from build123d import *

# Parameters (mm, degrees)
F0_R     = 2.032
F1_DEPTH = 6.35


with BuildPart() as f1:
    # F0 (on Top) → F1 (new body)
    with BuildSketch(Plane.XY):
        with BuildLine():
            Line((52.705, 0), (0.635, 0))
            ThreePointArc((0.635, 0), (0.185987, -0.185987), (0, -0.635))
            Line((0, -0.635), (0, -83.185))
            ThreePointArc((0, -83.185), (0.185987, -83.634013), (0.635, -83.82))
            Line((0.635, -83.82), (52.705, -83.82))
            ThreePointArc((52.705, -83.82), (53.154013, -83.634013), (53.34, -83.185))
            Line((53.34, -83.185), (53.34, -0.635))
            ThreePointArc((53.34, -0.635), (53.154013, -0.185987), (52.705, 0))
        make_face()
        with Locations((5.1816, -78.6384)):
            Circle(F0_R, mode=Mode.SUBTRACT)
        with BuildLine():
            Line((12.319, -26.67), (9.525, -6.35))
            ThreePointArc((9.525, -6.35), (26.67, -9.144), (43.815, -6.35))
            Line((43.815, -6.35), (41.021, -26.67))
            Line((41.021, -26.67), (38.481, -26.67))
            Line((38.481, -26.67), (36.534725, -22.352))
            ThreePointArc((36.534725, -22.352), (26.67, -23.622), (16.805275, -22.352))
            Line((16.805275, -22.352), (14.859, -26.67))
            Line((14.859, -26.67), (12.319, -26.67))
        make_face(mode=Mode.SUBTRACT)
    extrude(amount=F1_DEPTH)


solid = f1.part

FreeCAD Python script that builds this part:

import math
import FreeCAD as App
import Part
import Sketcher

V = App.Vector
Q = App.Units.Quantity

doc = App.newDocument("Part")
params = doc.addObject("Spreadsheet::Sheet", "Params")
for row, (alias, value) in enumerate([
    ("sketch1_diameter", "0.16 in"),
    ("sketch1_width", "0.1 in"),
    ("sketch1_radius", "0.025 in"),
    ("sketch1_width2", "2.05 in"),
    ("sketch1_height", "3.25 in"),
    ("pad1_length", "0.25 in"),
], start=1):
    params.set(f"A{row}", alias)
    params.set(f"B{row}", "=" + value)
    params.setAlias(f"B{row}", alias)

body = doc.addObject("PartDesign::Body", "Body")

sketch1 = body.newObject("Sketcher::SketchObject", "Sketch")
sketch1.AttachmentSupport = (doc.getObject("XY_Plane"), [""])
sketch1.MapMode = "FlatFace"
sketch1.addGeometry([
    Part.LineSegment(V(52.7, 0, 0), V(0.6, 0, 0)),
    Part.ArcOfCircle(Part.Circle(V(0.6, -0.6, 0), V(0, 0, 1), 0.6), math.radians(90), math.radians(180)),
    Part.LineSegment(V(0, -0.6, 0), V(0, -83.2, 0)),
    Part.ArcOfCircle(Part.Circle(V(0.6, -83.2, 0), V(0, 0, 1), 0.6), math.radians(180), math.radians(270)),
    Part.LineSegment(V(0.6, -83.8, 0), V(52.7, -83.8, 0)),
    Part.ArcOfCircle(Part.Circle(V(52.7, -83.2, 0), V(0, 0, 1), 0.6), math.radians(-90), math.radians(0)),
    Part.LineSegment(V(53.3, -83.2, 0), V(53.3, -0.6, 0)),
    Part.ArcOfCircle(Part.Circle(V(52.7, -0.6, 0), V(0, 0, 1), 0.6), math.radians(0), math.radians(90)),
    Part.Circle(V(5.2, -78.6, 0), V(0, 0, 1), 2),
    Part.LineSegment(V(14.9, -26.7, 0), V(12.3, -26.7, 0)),
    Part.LineSegment(V(12.3, -26.7, 0), V(9.5, -6.3, 0)),
    Part.ArcOfCircle(Part.Circle(V(26.7, 44.9, 0), V(0, 0, 1), 54), math.radians(-109), math.radians(-71)),
    Part.LineSegment(V(43.8, -6.3, 0), V(41, -26.7, 0)),
    Part.LineSegment(V(41, -26.7, 0), V(38.5, -26.7, 0)),
    Part.LineSegment(V(38.5, -26.7, 0), V(36.5, -22.4, 0)),
    Part.ArcOfCircle(Part.Circle(V(26.7, 15.3, 0), V(0, 0, 1), 38.9), math.radians(-105), math.radians(-75)),
    Part.LineSegment(V(16.8, -22.4, 0), V(14.9, -26.7, 0)),
], False)
sketch1.addConstraint([
    Sketcher.Constraint("Tangent", 0, 2, 1, 1),
    Sketcher.Constraint("Tangent", 1, 2, 2, 1),
    Sketcher.Constraint("Tangent", 2, 2, 3, 1),
    Sketcher.Constraint("Tangent", 3, 2, 4, 1),
    Sketcher.Constraint("Tangent", 4, 2, 5, 1),
    Sketcher.Constraint("Tangent", 5, 2, 6, 1),
    Sketcher.Constraint("Tangent", 6, 2, 7, 1),
    Sketcher.Constraint("Tangent", 7, 2, 0, 1),
    Sketcher.Constraint("Coincident", 9, 2, 10, 1),
    Sketcher.Constraint("Coincident", 10, 2, 11, 1),
    Sketcher.Constraint("Coincident", 11, 2, 12, 1),
    Sketcher.Constraint("Coincident", 12, 2, 13, 1),
    Sketcher.Constraint("Coincident", 13, 2, 14, 1),
    Sketcher.Constraint("Coincident", 14, 2, 15, 2),
    Sketcher.Constraint("Coincident", 15, 1, 16, 1),
    Sketcher.Constraint("Coincident", 16, 2, 9, 1),
    Sketcher.Constraint("Horizontal", 0),
    Sketcher.Constraint("Vertical", 2),
    Sketcher.Constraint("Horizontal", 4),
    Sketcher.Constraint("Vertical", 6),
    Sketcher.Constraint("Horizontal", 9),
    Sketcher.Constraint("Horizontal", 13),
    Sketcher.Constraint("Equal", 1, 3),
    Sketcher.Constraint("Equal", 3, 5),
    Sketcher.Constraint("Equal", 5, 7),
    Sketcher.Constraint("PointOnObject", 0, 2, -1),
    Sketcher.Constraint("PointOnObject", 1, 2, -2),
    Sketcher.Constraint("Horizontal", 10, 2, 11, 2),
    Sketcher.Constraint("Horizontal", 9, 2, 12, 2),
    Sketcher.Constraint("Horizontal", 14, 2, 15, 1),
    Sketcher.Constraint("Vertical", 11, 3, 15, 3),
    Sketcher.Constraint("Equal", 9, 13),
    Sketcher.Constraint("Equal", 10, 12),
    Sketcher.Constraint("Diameter", 8, Q("0.16 in")),
    Sketcher.Constraint("DistanceX", 9, 2, 9, 1, Q("0.1 in")),
    Sketcher.Constraint("Radius", 1, Q("0.025 in")),
    Sketcher.Constraint("DistanceX", 0, 2, 0, 1, Q("2.05 in")),
    Sketcher.Constraint("DistanceY", 2, 2, 2, 1, Q("3.25 in")),
    Sketcher.Constraint("DistanceY", 9, 2, 10, 2, Q("0.8 in")),
    Sketcher.Constraint("DistanceX", -1, 1, 11, 3, Q("1.05 in")),
    Sketcher.Constraint("DistanceY", 9, 2, -1, 1, Q("1.05 in")),
    Sketcher.Constraint("DistanceY", 14, 2, -1, 1, Q("0.88 in")),
    Sketcher.Constraint("DistanceX", 1, 3, 9, 2, Q("0.46 in")),
    Sketcher.Constraint("DistanceX", 1, 3, 10, 2, Q("0.35 in")),
    Sketcher.Constraint("DistanceX", -1, 1, 8, 3, Q("0.204 in")),
    Sketcher.Constraint("DistanceY", 8, 3, -1, 1, Q("3.096 in")),
    Sketcher.Constraint("Radius", 11, 54.000977),
    Sketcher.Constraint("Radius", 15, 38.947126),
    Sketcher.Constraint("Distance", 14, 4.73636),
])
sketch1.setExpression("Constraints[33]", "Params.sketch1_diameter")
sketch1.setExpression("Constraints[34]", "Params.sketch1_width")
sketch1.setExpression("Constraints[35]", "Params.sketch1_radius")
sketch1.setExpression("Constraints[36]", "Params.sketch1_width2")
sketch1.setExpression("Constraints[37]", "Params.sketch1_height")
pad1 = body.newObject("PartDesign::Pad", "Pad")
pad1.Profile = sketch1
pad1.setExpression("Length", "Params.pad1_length")

doc.recompute()
